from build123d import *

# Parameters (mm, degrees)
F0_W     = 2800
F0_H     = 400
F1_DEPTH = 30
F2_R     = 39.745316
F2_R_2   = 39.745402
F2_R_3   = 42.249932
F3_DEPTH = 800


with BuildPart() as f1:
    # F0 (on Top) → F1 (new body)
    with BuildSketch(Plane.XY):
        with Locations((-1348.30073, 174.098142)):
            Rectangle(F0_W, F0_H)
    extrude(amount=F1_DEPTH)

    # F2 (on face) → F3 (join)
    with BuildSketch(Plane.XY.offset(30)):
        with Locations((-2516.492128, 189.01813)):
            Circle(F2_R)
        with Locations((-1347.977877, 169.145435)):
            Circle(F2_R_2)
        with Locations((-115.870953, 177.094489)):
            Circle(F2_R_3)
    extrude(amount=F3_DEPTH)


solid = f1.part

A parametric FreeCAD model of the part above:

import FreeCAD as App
import Part
import Sketcher

V = App.Vector
Q = App.Units.Quantity

doc = App.newDocument("Part")
body = doc.addObject("PartDesign::Body", "Body")

# Sketch on XY plane
sketch1 = doc.addObject("Sketcher::SketchObject", "Sketch")
body.addObject(sketch1)
sketch1.AttachmentSupport = (doc.XY_Plane, [""])
sketch1.MapMode = "FlatFace"
sketch1.addGeometry([
    Part.LineSegment(V(-2748, 374, 0), V(-2748, -26, 0)),
    Part.LineSegment(V(-2748, -26, 0), V(52, -26, 0)),
    Part.LineSegment(V(52, -26, 0), V(52, 374, 0)),
    Part.LineSegment(V(52, 374, 0), V(-2748, 374, 0)),
], False)
sketch1.addConstraint([
    Sketcher.Constraint("Coincident", 0, 2, 1, 1),
    Sketcher.Constraint("Coincident", 1, 2, 2, 1),
    Sketcher.Constraint("Coincident", 2, 2, 3, 1),
    Sketcher.Constraint("Coincident", 3, 2, 0, 1),
    Sketcher.Constraint("Vertical", 0),
    Sketcher.Constraint("Horizontal", 1),
    Sketcher.Constraint("Vertical", 2),
    Sketcher.Constraint("Horizontal", 3),
    Sketcher.Constraint("DistanceX", 1, 1, 1, 2, Q("2800 mm")),
    Sketcher.Constraint("DistanceY", 0, 2, 0, 1, Q("400 mm")),
    Sketcher.Constraint("DistanceX", 0, 2, -1, 1, Q("2748.30073 mm")),
    Sketcher.Constraint("DistanceY", 0, 2, -1, 1, Q("25.901858 mm")),
])
pad1 = doc.addObject("PartDesign::Pad", "Pad")
body.addObject(pad1)
pad1.Profile = sketch1
pad1.Length = 30

# Sketch on XY plane
sketch2 = doc.addObject("Sketcher::SketchObject", "Sketch001")
body.addObject(sketch2)
sketch2.AttachmentSupport = (doc.XY_Plane, [""])
sketch2.MapMode = "FlatFace"
sketch2.AttachmentOffset = App.Placement(V(0, 0, 30), App.Rotation())
sketch2.addGeometry([
    Part.Circle(V(-2516, 189, 0), V(0, 0, 1), 40),
    Part.Circle(V(-1348, 169, 0), V(0, 0, 1), 40),
    Part.Circle(V(-116, 177, 0), V(0, 0, 1), 42),
], False)
sketch2.addConstraint([
    Sketcher.Constraint("Diameter", 0, Q("79.490632 mm")),
    Sketcher.Constraint("Diameter", 1, Q("79.490804 mm")),
    Sketcher.Constraint("Diameter", 2, Q("84.499864 mm")),
    Sketcher.Constraint("DistanceY", -1, 1, 0, 3, Q("189.01813 mm")),
    Sketcher.Constraint("DistanceY", -1, 1, 2, 3, Q("177.094489 mm")),
    Sketcher.Constraint("DistanceX", 0, 3, 1, 3, Q("1168.514251 mm")),
    Sketcher.Constraint("DistanceX", 0, 3, -1, 1, Q("2516.492128 mm")),
    Sketcher.Constraint("DistanceY", -1, 1, 1, 3, Q("169.145435 mm")),
    Sketcher.Constraint("DistanceX", 2, 3, -1, 1, Q("115.870953 mm")),
])
pad2 = doc.addObject("PartDesign::Pad", "Pad001")
body.addObject(pad2)
pad2.Profile = sketch2
pad2.Length = 800

doc.recompute()
